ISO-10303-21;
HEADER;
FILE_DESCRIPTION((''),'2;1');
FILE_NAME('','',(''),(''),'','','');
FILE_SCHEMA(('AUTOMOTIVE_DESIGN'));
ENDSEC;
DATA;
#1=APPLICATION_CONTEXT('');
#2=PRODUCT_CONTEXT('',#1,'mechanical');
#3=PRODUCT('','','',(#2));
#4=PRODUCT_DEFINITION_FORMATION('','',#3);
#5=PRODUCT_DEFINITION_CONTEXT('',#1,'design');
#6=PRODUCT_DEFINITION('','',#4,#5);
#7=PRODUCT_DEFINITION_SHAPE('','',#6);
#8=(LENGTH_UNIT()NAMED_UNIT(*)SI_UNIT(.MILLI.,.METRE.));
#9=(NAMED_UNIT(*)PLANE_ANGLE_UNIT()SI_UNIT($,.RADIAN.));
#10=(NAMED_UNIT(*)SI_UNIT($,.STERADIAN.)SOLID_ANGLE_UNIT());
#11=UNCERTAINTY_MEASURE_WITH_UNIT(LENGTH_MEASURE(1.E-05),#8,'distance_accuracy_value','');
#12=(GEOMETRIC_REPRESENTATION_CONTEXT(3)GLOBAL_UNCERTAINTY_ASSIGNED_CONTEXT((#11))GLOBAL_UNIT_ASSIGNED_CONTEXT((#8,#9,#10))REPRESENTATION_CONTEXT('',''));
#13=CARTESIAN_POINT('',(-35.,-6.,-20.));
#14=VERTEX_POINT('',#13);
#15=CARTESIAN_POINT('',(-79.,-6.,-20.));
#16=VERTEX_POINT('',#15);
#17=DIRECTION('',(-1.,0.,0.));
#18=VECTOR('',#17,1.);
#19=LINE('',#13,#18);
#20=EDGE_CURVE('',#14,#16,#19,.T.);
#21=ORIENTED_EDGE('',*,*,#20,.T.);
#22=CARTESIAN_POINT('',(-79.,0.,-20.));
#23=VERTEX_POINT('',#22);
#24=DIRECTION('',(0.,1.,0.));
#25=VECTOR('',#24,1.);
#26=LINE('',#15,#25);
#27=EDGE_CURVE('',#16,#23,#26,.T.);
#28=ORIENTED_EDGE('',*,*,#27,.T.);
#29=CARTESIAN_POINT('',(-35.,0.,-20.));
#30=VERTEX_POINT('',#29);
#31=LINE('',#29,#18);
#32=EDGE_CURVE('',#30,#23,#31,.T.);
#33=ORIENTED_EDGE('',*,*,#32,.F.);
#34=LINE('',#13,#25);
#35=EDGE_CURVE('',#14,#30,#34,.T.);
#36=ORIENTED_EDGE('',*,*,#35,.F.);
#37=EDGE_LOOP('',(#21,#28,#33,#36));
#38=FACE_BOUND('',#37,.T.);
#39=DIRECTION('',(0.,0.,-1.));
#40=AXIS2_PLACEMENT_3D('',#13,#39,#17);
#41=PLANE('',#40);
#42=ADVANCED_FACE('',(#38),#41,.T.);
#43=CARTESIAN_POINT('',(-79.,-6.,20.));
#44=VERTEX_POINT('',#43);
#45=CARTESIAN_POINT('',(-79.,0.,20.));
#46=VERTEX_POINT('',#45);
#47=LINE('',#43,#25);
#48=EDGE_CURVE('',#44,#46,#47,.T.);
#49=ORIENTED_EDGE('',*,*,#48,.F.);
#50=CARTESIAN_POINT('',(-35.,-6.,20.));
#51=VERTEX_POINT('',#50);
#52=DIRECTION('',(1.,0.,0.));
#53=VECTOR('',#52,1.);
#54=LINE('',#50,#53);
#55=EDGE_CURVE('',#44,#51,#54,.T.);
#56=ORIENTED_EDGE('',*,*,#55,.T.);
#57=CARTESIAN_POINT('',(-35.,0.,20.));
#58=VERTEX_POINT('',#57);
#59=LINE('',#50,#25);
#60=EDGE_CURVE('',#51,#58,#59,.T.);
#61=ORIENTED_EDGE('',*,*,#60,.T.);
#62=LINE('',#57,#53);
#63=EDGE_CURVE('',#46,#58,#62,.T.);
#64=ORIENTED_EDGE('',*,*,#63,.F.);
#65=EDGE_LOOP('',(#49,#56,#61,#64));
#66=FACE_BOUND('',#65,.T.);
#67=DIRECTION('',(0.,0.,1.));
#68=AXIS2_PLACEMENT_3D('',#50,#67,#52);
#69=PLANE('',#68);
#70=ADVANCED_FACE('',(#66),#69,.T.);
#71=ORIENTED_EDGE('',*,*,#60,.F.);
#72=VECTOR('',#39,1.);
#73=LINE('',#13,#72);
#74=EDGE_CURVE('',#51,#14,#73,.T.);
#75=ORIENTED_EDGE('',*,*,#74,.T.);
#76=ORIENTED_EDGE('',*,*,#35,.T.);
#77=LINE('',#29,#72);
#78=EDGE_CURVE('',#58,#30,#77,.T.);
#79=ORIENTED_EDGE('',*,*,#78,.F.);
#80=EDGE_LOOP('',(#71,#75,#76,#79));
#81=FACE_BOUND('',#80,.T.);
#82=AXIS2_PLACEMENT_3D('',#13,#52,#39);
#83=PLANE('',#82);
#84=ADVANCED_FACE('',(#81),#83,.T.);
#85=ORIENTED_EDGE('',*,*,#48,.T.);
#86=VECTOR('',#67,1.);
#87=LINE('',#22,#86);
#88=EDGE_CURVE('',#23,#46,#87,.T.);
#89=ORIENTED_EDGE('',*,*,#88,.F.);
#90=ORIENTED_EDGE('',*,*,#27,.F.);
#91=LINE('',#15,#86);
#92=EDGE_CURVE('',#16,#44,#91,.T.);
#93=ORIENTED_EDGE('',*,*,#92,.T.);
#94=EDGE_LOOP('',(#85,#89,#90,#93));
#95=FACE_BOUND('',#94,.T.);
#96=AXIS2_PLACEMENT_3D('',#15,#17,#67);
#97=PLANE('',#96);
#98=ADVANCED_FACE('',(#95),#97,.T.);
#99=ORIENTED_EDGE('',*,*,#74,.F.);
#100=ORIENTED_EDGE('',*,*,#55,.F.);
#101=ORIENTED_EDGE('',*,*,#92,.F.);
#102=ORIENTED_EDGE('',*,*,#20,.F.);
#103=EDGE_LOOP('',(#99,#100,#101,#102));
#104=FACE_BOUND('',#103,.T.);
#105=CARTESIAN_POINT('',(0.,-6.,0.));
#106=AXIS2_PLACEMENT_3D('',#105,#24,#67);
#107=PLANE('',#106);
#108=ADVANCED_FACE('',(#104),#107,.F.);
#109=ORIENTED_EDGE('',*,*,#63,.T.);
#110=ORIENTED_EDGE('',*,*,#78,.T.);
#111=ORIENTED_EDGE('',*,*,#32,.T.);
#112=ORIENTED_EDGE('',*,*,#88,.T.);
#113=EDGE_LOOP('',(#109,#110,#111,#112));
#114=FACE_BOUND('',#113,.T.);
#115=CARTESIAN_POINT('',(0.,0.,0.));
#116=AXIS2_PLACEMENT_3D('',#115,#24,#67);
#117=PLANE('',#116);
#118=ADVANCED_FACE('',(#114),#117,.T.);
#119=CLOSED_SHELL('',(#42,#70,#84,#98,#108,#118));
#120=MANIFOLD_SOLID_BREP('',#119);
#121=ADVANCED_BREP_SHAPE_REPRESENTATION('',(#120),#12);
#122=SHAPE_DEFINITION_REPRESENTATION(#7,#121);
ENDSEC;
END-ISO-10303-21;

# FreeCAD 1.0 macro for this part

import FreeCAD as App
import Part
import Sketcher
from FreeCAD import Vector

doc = App.newDocument("Part")
body = doc.addObject("PartDesign::Body", "Body")

sketch1 = body.newObject("Sketcher::SketchObject", "Sketch")
sketch1.AttachmentSupport = (doc.getObject("XZ_Plane"), [""])
sketch1.MapMode = "FlatFace"
sketch1.addGeometry(Part.LineSegment(Vector(-79, -20, 0), Vector(-79, 20, 0)), False)
sketch1.addGeometry(Part.LineSegment(Vector(-79, 20, 0), Vector(-35, 20, 0)), False)
sketch1.addGeometry(Part.LineSegment(Vector(-35, 20, 0), Vector(-35, -20, 0)), False)
sketch1.addGeometry(Part.LineSegment(Vector(-35, -20, 0), Vector(-79, -20, 0)), False)
sketch1.addConstraint(Sketcher.Constraint("Coincident", 0, 2, 1, 1))
sketch1.addConstraint(Sketcher.Constraint("Coincident", 1, 2, 2, 1))
sketch1.addConstraint(Sketcher.Constraint("Coincident", 2, 2, 3, 1))
sketch1.addConstraint(Sketcher.Constraint("Coincident", 3, 2, 0, 1))
sketch1.addConstraint(Sketcher.Constraint("Vertical", 0))
sketch1.addConstraint(Sketcher.Constraint("Horizontal", 1))
sketch1.addConstraint(Sketcher.Constraint("Vertical", 2))
sketch1.addConstraint(Sketcher.Constraint("Horizontal", 3))
sketch1.addConstraint(Sketcher.Constraint("DistanceX", 1, 1, 1, 2, 44.0))
sketch1.addConstraint(Sketcher.Constraint("DistanceY", 0, 1, 0, 2, 40.0))
sketch1.addConstraint(Sketcher.Constraint("DistanceX", 0, 2, -1, 1, 79.0))
sketch1.addConstraint(Sketcher.Constraint("DistanceY", -1, 1, 0, 2, 20.0))
pad1 = body.newObject("PartDesign::Pad", "Pad")
pad1.Profile = sketch1
pad1.Length = 6

doc.recompute()
